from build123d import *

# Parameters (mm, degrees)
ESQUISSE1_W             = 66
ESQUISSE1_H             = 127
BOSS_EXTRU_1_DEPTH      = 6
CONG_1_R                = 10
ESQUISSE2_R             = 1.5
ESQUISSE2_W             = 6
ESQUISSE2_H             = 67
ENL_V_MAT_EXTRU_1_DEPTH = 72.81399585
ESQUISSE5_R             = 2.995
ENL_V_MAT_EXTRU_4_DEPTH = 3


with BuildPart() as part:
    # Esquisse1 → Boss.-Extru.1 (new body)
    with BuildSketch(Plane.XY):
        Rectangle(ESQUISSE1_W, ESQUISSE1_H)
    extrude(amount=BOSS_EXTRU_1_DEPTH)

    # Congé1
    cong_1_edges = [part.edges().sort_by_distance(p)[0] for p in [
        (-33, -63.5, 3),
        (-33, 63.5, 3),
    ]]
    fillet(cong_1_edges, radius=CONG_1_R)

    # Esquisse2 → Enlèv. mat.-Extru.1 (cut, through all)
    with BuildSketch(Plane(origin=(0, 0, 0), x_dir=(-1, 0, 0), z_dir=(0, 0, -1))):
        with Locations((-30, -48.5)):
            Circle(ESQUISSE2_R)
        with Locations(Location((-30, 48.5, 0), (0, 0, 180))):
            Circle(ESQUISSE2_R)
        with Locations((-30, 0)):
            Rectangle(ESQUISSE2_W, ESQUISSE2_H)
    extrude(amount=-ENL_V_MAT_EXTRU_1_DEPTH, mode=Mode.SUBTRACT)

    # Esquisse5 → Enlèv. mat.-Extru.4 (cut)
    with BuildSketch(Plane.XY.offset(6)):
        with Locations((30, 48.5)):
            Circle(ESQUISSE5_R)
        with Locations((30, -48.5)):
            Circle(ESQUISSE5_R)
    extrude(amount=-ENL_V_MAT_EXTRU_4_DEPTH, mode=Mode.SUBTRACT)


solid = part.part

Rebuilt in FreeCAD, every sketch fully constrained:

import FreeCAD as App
import Part
import Sketcher
from FreeCAD import Vector
Q = App.Units.Quantity


def edges_at(feature, points):
    """Names of the edges that pass closest to the given points."""
    edges = feature.Shape.Edges
    near = lambda p: min(range(len(edges)), key=lambda i: edges[i].distToShape(Part.Vertex(*p))[0])
    return sorted({f"Edge{near(p) + 1}" for p in points})


def add_polygon(sketch, points):
    """Adds a closed chain of lines whose ends are joined by coincident constraints."""
    first, n = sketch.GeometryCount, len(points)
    for a, b in zip(points, points[1:] + points[:1]):
        sketch.addGeometry(Part.LineSegment(App.Vector(*a, 0), App.Vector(*b, 0)), False)
    for i in range(n):
        sketch.addConstraint(Sketcher.Constraint("Coincident", first + i, 2, first + (i + 1) % n, 1))

doc = App.newDocument("Part")
params = doc.addObject("Spreadsheet::Sheet", "Params")
for row, (alias, value) in enumerate([
    ("sketch1_width", "66 mm"),
    ("sketch1_height", "127 mm"),
    ("pad1_length", "6 mm"),
    ("fillet_radius", "10 mm"),
    ("sketch2_diameter", "3 mm"),
    ("sketch2_width", "6 mm"),
    ("sketch2_height", "67 mm"),
    ("sketch3_diameter", "5.99 mm"),
    ("pocket2_length", "3 mm"),
], start=1):
    params.set(f"A{row}", alias)
    params.set(f"B{row}", "=" + value)
    params.setAlias(f"B{row}", alias)

body = doc.addObject("PartDesign::Body", "Body")

sketch1 = body.newObject("Sketcher::SketchObject", "Sketch")
sketch1.AttachmentSupport = (doc.getObject("XY_Plane"), [""])
sketch1.MapMode = "FlatFace"
add_polygon(sketch1, [(-33, 63.5), (-33, -63.5), (33, -63.5), (33, 63.5)])
sketch1.addConstraint([
    Sketcher.Constraint("Vertical", 0),
    Sketcher.Constraint("Horizontal", 1),
    Sketcher.Constraint("Vertical", 2),
    Sketcher.Constraint("Horizontal", 3),
    Sketcher.Constraint("Symmetric", 0, 2, 2, 2, -1, 1),
    Sketcher.Constraint("DistanceX", 1, 1, 1, 2, Q("66 mm")),
    Sketcher.Constraint("DistanceY", 0, 2, 0, 1, Q("127 mm")),
])
sketch1.setExpression("Constraints[9]", "Params.sketch1_width")
sketch1.setExpression("Constraints[10]", "Params.sketch1_height")
pad1 = body.newObject("PartDesign::Pad", "Pad")
pad1.Profile = sketch1
pad1.setExpression("Length", "Params.pad1_length")
doc.recompute()

fillet = body.newObject("PartDesign::Fillet", "Fillet")
fillet.Base = (pad1, edges_at(pad1, [(-33, -63.5, 3), (-33, 63.5, 3)]))
fillet.setExpression("Radius", "Params.fillet_radius")

sketch2 = body.newObject("Sketcher::SketchObject", "Sketch001")
sketch2.AttachmentSupport = (doc.getObject("XY_Plane"), [""])
sketch2.MapMode = "FlatFace"
sketch2.addGeometry(Part.Circle(Vector(30, -48.5, 0), Vector(0, 0, 1), 1.5), False)
sketch2.addGeometry(Part.Circle(Vector(30, 48.5, 0), Vector(0, 0, 1), 1.5), False)
add_polygon(sketch2, [(33, 33.5), (33, -33.5), (27, -33.5), (27, 33.5)])
sketch2.addConstraint([
    Sketcher.Constraint("Vertical", 2),
    Sketcher.Constraint("Horizontal", 3),
    Sketcher.Constraint("Vertical", 4),
    Sketcher.Constraint("Horizontal", 5),
    Sketcher.Constraint("Equal", 0, 1),
    Sketcher.Constraint("Symmetric", 0, 3, 1, 3, -1),
    Sketcher.Constraint("Diameter", 0, Q("3 mm")),
    Sketcher.Constraint("DistanceX", 3, 2, 3, 1, Q("6 mm")),
    Sketcher.Constraint("DistanceY", 2, 2, 2, 1, Q("67 mm")),
    Sketcher.Constraint("DistanceX", -1, 1, 0, 3, Q("30 mm")),
    Sketcher.Constraint("DistanceX", -1, 1, 2, 2, Q("33 mm")),
    Sketcher.Constraint("DistanceY", 0, 3, 1, 3, Q("97 mm")),
    Sketcher.Constraint("DistanceY", 0, 3, 2, 2, Q("15 mm")),
])
sketch2.setExpression("Constraints[10]", "Params.sketch2_diameter")
sketch2.setExpression("Constraints[11]", "Params.sketch2_width")
sketch2.setExpression("Constraints[12]", "Params.sketch2_height")
pocket1 = body.newObject("PartDesign::Pocket", "Pocket")
pocket1.Profile = sketch2
pocket1.Type = "ThroughAll"
pocket1.Reversed = True

sketch3 = body.newObject("Sketcher::SketchObject", "Sketch002")
sketch3.AttachmentSupport = (doc.getObject("XY_Plane"), [""])
sketch3.MapMode = "FlatFace"
sketch3.AttachmentOffset = App.Placement(Vector(0, 0, 6), App.Rotation())
sketch3.addGeometry([
    Part.Circle(Vector(30, 48.5, 0), Vector(0, 0, 1), 2.995),
    Part.Circle(Vector(30, -48.5, 0), Vector(0, 0, 1), 2.995),
], False)
sketch3.addConstraint([
    Sketcher.Constraint("Equal", 0, 1),
    Sketcher.Constraint("Symmetric", 0, 3, 1, 3, -1),
    Sketcher.Constraint("Diameter", 0, Q("5.99 mm")),
    Sketcher.Constraint("DistanceX", -1, 1, 0, 3, Q("30 mm")),
    Sketcher.Constraint("DistanceY", 1, 3, 0, 3, Q("97 mm")),
])
sketch3.setExpression("Constraints[2]", "Params.sketch3_diameter")
pocket2 = body.newObject("PartDesign::Pocket", "Pocket001")
pocket2.Profile = sketch3
pocket2.setExpression("Length", "Params.pocket2_length")

doc.recompute()
